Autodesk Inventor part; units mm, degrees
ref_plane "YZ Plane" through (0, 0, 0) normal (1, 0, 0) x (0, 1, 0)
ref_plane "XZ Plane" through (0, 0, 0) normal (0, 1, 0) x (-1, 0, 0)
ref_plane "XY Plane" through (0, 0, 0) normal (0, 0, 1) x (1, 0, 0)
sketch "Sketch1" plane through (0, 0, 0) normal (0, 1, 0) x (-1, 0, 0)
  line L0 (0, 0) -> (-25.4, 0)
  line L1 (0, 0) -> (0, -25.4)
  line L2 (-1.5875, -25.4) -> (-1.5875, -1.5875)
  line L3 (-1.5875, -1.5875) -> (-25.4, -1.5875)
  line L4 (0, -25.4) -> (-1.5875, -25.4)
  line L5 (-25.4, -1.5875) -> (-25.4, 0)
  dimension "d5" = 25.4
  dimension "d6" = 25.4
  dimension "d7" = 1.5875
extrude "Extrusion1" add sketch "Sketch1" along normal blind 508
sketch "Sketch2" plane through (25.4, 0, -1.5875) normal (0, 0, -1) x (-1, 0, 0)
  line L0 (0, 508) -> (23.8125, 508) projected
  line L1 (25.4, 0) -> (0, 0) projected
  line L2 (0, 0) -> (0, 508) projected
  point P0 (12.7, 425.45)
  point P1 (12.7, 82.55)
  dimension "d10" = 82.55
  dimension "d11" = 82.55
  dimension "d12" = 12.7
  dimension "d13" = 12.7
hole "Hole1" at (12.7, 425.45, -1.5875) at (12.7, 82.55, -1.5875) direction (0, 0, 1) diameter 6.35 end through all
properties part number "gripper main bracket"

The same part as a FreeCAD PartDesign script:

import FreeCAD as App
import Part
import Sketcher
Q = App.Units.Quantity


def add_polygon(sketch, points):
    """Adds a closed chain of lines whose ends are joined by coincident constraints."""
    first, n = sketch.GeometryCount, len(points)
    for a, b in zip(points, points[1:] + points[:1]):
        sketch.addGeometry(Part.LineSegment(App.Vector(*a, 0), App.Vector(*b, 0)), False)
    for i in range(n):
        sketch.addConstraint(Sketcher.Constraint("Coincident", first + i, 2, first + (i + 1) % n, 1))

doc = App.newDocument("Part")
body = doc.addObject("PartDesign::Body", "Body")

# Sketch on XZ plane
sketch1 = body.newObject("Sketcher::SketchObject", "Sketch")
sketch1.AttachmentSupport = (doc.getObject("XZ_Plane"), [""])
sketch1.MapMode = "FlatFace"
add_polygon(sketch1, [(0, -25.4), (0, 0), (25.4, 0), (25.4, -1.5875), (1.5875, -1.5875), (1.5875, -25.4)])  # lines 0-5
sketch1.addConstraint([
    Sketcher.Constraint("Vertical", 0),
    Sketcher.Constraint("Horizontal", 1),
    Sketcher.Constraint("Vertical", 2),
    Sketcher.Constraint("Horizontal", 3),
    Sketcher.Constraint("Vertical", 4),
    Sketcher.Constraint("Horizontal", 5),
    Sketcher.Constraint("Coincident", 0, 2, -1, 1),
    Sketcher.Constraint("Equal", 1, 0),
    Sketcher.Constraint("Equal", 5, 2),
    Sketcher.Constraint("DistanceX", 1, 1, 1, 2, Q("1 in")),
    Sketcher.Constraint("DistanceX", 5, 2, 5, 1, Q("0.0625 in")),
])
pad1 = body.newObject("PartDesign::Pad", "Pad")
pad1.Profile = sketch1
pad1.Length = Q("20 in")
pad1.Reversed = True

# Sketch on XY plane
sketch2 = body.newObject("Sketcher::SketchObject", "Sketch001")
sketch2.AttachmentSupport = (doc.getObject("XY_Plane"), [""])
sketch2.MapMode = "FlatFace"
sketch2.AttachmentOffset = App.Placement(App.Vector(0, 0, -0.0625 * 25.4), App.Rotation())
sketch2.addGeometry([
    Part.Circle(App.Vector(12.7, 425.45, 0), App.Vector(0, 0, 1), 3.175),
    Part.Circle(App.Vector(12.7, 82.55, 0), App.Vector(0, 0, 1), 3.175),
], False)
sketch2.addConstraint([
    Sketcher.Constraint("Equal", 0, 1),
    Sketcher.Constraint("Vertical", 0, 3, 1, 3),
    Sketcher.Constraint("Diameter", 0, Q("0.25 in")),
    Sketcher.Constraint("DistanceX", -1, 1, 0, 3, Q("0.5 in")),
    Sketcher.Constraint("DistanceY", 1, 3, 0, 3, Q("13.5 in")),
    Sketcher.Constraint("DistanceY", -1, 1, 0, 3, Q("16.75 in")),
])
doc.recompute()
hole = body.newObject("PartDesign::Hole", "Hole")
hole.Profile = sketch2
hole.ThreadType = "None"
hole.Diameter = Q("0.25 in")
hole.DepthType = "ThroughAll"
hole.Reversed = True

doc.recompute()
